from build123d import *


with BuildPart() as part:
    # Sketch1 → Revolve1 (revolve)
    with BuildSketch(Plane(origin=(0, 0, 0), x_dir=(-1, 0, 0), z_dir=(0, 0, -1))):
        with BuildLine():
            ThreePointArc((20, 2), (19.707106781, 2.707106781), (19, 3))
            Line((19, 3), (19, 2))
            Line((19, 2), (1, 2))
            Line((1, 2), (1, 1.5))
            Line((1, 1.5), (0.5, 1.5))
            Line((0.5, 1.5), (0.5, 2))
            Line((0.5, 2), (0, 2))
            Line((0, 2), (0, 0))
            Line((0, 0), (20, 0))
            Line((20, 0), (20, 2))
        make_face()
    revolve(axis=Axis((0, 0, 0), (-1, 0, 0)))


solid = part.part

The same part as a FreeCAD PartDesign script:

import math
import FreeCAD as App
import Part
import Sketcher

V = App.Vector

doc = App.newDocument("Part")
body = doc.addObject("PartDesign::Body", "Body")

sketch1 = body.newObject("Sketcher::SketchObject", "Sketch")
sketch1.AttachmentSupport = (doc.getObject("XY_Plane"), [""])
sketch1.MapMode = "FlatFace"
sketch1.addGeometry([
    Part.ArcOfCircle(Part.Circle(V(-19, 2, 0), V(0, 0, 1), 1), math.radians(90), math.radians(180)),
    Part.LineSegment(V(-19, 3, 0), V(-19, 2, 0)),
    Part.LineSegment(V(-19, 2, 0), V(-1, 2, 0)),
    Part.LineSegment(V(-1, 2, 0), V(-1, 1.5, 0)),
    Part.LineSegment(V(-1, 1.5, 0), V(-0.5, 1.5, 0)),
    Part.LineSegment(V(-0.5, 1.5, 0), V(-0.5, 2, 0)),
    Part.LineSegment(V(-0.5, 2, 0), V(0, 2, 0)),
    Part.LineSegment(V(0, 2, 0), V(0, 0, 0)),
    Part.LineSegment(V(0, 0, 0), V(-20, 0, 0)),
    Part.LineSegment(V(-20, 0, 0), V(-20, 2, 0)),
], False)
sketch1.addConstraint([
    Sketcher.Constraint("Coincident", 0, 1, 1, 1),
    Sketcher.Constraint("Coincident", 1, 2, 2, 1),
    Sketcher.Constraint("Coincident", 2, 2, 3, 1),
    Sketcher.Constraint("Coincident", 3, 2, 4, 1),
    Sketcher.Constraint("Coincident", 4, 2, 5, 1),
    Sketcher.Constraint("Coincident", 5, 2, 6, 1),
    Sketcher.Constraint("Coincident", 6, 2, 7, 1),
    Sketcher.Constraint("Coincident", 7, 2, 8, 1),
    Sketcher.Constraint("Coincident", 8, 2, 9, 1),
    Sketcher.Constraint("Tangent", 9, 2, 0, 2),
    Sketcher.Constraint("Vertical", 1),
    Sketcher.Constraint("Horizontal", 2),
    Sketcher.Constraint("Vertical", 3),
    Sketcher.Constraint("Horizontal", 4),
    Sketcher.Constraint("Vertical", 5),
    Sketcher.Constraint("Horizontal", 6),
    Sketcher.Constraint("Vertical", 7),
    Sketcher.Constraint("Horizontal", 8),
    Sketcher.Constraint("Vertical", 9),
    Sketcher.Constraint("Coincident", 7, 2, -1, 1),
    Sketcher.Constraint("Coincident", 1, 2, 0, 3),
    Sketcher.Constraint("Horizontal", 2, 2, 5, 2),
    Sketcher.Constraint("Equal", 4, 6),
    Sketcher.Constraint("Equal", 6, 3),
    Sketcher.Constraint("Radius", 0, 1.0),
    Sketcher.Constraint("DistanceX", 2, 1, 2, 2, 18.0),
    Sketcher.Constraint("DistanceX", 8, 2, 8, 1, 20.0),
    Sketcher.Constraint("DistanceY", 7, 2, 7, 1, 2.0),
])
revolution = body.newObject("PartDesign::Revolution", "Revolution")
revolution.Profile = sketch1
revolution.ReferenceAxis = (sketch1, ["H_Axis"])
revolution.Angle = 360

doc.recompute()
